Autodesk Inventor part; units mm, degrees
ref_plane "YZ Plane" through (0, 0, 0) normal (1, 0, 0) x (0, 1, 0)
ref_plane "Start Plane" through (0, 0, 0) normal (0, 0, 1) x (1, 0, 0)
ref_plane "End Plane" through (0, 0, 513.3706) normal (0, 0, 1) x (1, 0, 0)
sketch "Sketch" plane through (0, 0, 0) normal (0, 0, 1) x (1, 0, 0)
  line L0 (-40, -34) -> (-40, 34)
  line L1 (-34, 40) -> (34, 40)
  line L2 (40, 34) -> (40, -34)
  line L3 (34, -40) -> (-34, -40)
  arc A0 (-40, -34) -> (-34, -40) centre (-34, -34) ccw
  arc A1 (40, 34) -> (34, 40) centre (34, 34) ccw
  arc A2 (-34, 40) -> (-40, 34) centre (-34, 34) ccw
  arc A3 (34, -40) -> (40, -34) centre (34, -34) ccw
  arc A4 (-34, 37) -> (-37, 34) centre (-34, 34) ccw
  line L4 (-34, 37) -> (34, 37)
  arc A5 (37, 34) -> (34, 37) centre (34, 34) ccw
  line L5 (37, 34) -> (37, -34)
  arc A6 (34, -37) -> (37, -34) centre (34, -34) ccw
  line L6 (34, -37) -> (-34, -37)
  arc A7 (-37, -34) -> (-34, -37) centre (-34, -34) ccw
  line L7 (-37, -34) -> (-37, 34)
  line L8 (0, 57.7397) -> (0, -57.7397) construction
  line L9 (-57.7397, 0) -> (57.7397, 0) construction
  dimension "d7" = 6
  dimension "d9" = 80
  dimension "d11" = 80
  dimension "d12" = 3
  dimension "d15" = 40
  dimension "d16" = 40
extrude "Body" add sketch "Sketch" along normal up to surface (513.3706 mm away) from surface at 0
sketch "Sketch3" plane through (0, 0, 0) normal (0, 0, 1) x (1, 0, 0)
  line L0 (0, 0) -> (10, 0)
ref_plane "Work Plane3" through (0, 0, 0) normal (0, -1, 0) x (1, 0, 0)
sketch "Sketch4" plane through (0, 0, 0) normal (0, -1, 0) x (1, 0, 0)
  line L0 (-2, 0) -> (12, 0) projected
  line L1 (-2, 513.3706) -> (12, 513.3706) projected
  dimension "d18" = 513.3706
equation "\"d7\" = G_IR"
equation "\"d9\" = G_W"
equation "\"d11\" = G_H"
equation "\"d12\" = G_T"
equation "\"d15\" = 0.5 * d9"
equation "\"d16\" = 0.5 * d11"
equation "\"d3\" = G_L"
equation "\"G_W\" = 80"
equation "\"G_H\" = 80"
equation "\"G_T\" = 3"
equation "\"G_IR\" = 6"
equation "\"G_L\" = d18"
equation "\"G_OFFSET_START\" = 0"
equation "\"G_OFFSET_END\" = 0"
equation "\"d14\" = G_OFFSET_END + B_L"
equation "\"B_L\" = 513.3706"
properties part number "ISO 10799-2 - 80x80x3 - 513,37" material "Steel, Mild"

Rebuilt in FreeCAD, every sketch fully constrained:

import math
import FreeCAD as App
import Part
import Sketcher
from FreeCAD import Vector
Q = App.Units.Quantity

doc = App.newDocument("Part")
body = doc.addObject("PartDesign::Body", "Body")

sketch1 = doc.addObject("Sketcher::SketchObject", "Sketch")
body.addObject(sketch1)
sketch1.AttachmentSupport = (doc.XY_Plane, [""])
sketch1.MapMode = "FlatFace"
sketch1.addGeometry([
    Part.LineSegment(Vector(-40, 34, 0), Vector(-40, -34, 0)),
    Part.ArcOfCircle(Part.Circle(Vector(-34, -34, 0), Vector(0, 0, 1), 6), math.radians(180), math.radians(270)),
    Part.LineSegment(Vector(-34, -40, 0), Vector(34, -40, 0)),
    Part.ArcOfCircle(Part.Circle(Vector(34, -34, 0), Vector(0, 0, 1), 6), math.radians(-90), math.radians(0)),
    Part.LineSegment(Vector(40, -34, 0), Vector(40, 34, 0)),
    Part.ArcOfCircle(Part.Circle(Vector(34, 34, 0), Vector(0, 0, 1), 6), math.radians(0), math.radians(90)),
    Part.LineSegment(Vector(34, 40, 0), Vector(-34, 40, 0)),
    Part.ArcOfCircle(Part.Circle(Vector(-34, 34, 0), Vector(0, 0, 1), 6), math.radians(90), math.radians(180)),
    Part.ArcOfCircle(Part.Circle(Vector(-34, 34, 0), Vector(0, 0, 1), 3), math.radians(90), math.radians(180)),
    Part.LineSegment(Vector(-34, 37, 0), Vector(34, 37, 0)),
    Part.ArcOfCircle(Part.Circle(Vector(34, 34, 0), Vector(0, 0, 1), 3), math.radians(0), math.radians(90)),
    Part.LineSegment(Vector(37, 34, 0), Vector(37, -34, 0)),
    Part.ArcOfCircle(Part.Circle(Vector(34, -34, 0), Vector(0, 0, 1), 3), math.radians(-90), math.radians(0)),
    Part.LineSegment(Vector(34, -37, 0), Vector(-34, -37, 0)),
    Part.ArcOfCircle(Part.Circle(Vector(-34, -34, 0), Vector(0, 0, 1), 3), math.radians(180), math.radians(270)),
    Part.LineSegment(Vector(-37, -34, 0), Vector(-37, 34, 0)),
], False)
sketch1.addConstraint([
    Sketcher.Constraint("Tangent", 0, 2, 1, 1),
    Sketcher.Constraint("Tangent", 1, 2, 2, 1),
    Sketcher.Constraint("Tangent", 2, 2, 3, 1),
    Sketcher.Constraint("Tangent", 3, 2, 4, 1),
    Sketcher.Constraint("Tangent", 4, 2, 5, 1),
    Sketcher.Constraint("Tangent", 5, 2, 6, 1),
    Sketcher.Constraint("Tangent", 6, 2, 7, 1),
    Sketcher.Constraint("Tangent", 7, 2, 0, 1),
    Sketcher.Constraint("Tangent", 8, 1, 9, 1),
    Sketcher.Constraint("Tangent", 9, 2, 10, 2),
    Sketcher.Constraint("Tangent", 10, 1, 11, 1),
    Sketcher.Constraint("Tangent", 11, 2, 12, 2),
    Sketcher.Constraint("Tangent", 12, 1, 13, 1),
    Sketcher.Constraint("Tangent", 13, 2, 14, 2),
    Sketcher.Constraint("Tangent", 14, 1, 15, 1),
    Sketcher.Constraint("Tangent", 15, 2, 8, 2),
    Sketcher.Constraint("Vertical", 0),
    Sketcher.Constraint("Horizontal", 2),
    Sketcher.Constraint("Vertical", 4),
    Sketcher.Constraint("Horizontal", 6),
    Sketcher.Constraint("Horizontal", 9),
    Sketcher.Constraint("Vertical", 11),
    Sketcher.Constraint("Horizontal", 13),
    Sketcher.Constraint("Vertical", 15),
    Sketcher.Constraint("Coincident", 8, 3, 7, 3),
    Sketcher.Constraint("Coincident", 10, 3, 5, 3),
    Sketcher.Constraint("Coincident", 12, 3, 3, 3),
    Sketcher.Constraint("Equal", 1, 3),
    Sketcher.Constraint("Equal", 3, 5),
    Sketcher.Constraint("Equal", 5, 7),
    Sketcher.Constraint("Equal", 12, 14),
    Sketcher.Constraint("Symmetric", 1, 3, 5, 3, -1, 1),
    Sketcher.Constraint("Equal", 13, 0),
    Sketcher.Constraint("Radius", 1, Q("6 mm")),
    Sketcher.Constraint("Radius", 8, Q("3 mm")),
    Sketcher.Constraint("DistanceX", 0, 2, -1, 1, Q("40 mm")),
])
pad1 = doc.addObject("PartDesign::Pad", "Pad")
body.addObject(pad1)
pad1.Profile = sketch1
pad1.Length = 513.3706

doc.recompute()
